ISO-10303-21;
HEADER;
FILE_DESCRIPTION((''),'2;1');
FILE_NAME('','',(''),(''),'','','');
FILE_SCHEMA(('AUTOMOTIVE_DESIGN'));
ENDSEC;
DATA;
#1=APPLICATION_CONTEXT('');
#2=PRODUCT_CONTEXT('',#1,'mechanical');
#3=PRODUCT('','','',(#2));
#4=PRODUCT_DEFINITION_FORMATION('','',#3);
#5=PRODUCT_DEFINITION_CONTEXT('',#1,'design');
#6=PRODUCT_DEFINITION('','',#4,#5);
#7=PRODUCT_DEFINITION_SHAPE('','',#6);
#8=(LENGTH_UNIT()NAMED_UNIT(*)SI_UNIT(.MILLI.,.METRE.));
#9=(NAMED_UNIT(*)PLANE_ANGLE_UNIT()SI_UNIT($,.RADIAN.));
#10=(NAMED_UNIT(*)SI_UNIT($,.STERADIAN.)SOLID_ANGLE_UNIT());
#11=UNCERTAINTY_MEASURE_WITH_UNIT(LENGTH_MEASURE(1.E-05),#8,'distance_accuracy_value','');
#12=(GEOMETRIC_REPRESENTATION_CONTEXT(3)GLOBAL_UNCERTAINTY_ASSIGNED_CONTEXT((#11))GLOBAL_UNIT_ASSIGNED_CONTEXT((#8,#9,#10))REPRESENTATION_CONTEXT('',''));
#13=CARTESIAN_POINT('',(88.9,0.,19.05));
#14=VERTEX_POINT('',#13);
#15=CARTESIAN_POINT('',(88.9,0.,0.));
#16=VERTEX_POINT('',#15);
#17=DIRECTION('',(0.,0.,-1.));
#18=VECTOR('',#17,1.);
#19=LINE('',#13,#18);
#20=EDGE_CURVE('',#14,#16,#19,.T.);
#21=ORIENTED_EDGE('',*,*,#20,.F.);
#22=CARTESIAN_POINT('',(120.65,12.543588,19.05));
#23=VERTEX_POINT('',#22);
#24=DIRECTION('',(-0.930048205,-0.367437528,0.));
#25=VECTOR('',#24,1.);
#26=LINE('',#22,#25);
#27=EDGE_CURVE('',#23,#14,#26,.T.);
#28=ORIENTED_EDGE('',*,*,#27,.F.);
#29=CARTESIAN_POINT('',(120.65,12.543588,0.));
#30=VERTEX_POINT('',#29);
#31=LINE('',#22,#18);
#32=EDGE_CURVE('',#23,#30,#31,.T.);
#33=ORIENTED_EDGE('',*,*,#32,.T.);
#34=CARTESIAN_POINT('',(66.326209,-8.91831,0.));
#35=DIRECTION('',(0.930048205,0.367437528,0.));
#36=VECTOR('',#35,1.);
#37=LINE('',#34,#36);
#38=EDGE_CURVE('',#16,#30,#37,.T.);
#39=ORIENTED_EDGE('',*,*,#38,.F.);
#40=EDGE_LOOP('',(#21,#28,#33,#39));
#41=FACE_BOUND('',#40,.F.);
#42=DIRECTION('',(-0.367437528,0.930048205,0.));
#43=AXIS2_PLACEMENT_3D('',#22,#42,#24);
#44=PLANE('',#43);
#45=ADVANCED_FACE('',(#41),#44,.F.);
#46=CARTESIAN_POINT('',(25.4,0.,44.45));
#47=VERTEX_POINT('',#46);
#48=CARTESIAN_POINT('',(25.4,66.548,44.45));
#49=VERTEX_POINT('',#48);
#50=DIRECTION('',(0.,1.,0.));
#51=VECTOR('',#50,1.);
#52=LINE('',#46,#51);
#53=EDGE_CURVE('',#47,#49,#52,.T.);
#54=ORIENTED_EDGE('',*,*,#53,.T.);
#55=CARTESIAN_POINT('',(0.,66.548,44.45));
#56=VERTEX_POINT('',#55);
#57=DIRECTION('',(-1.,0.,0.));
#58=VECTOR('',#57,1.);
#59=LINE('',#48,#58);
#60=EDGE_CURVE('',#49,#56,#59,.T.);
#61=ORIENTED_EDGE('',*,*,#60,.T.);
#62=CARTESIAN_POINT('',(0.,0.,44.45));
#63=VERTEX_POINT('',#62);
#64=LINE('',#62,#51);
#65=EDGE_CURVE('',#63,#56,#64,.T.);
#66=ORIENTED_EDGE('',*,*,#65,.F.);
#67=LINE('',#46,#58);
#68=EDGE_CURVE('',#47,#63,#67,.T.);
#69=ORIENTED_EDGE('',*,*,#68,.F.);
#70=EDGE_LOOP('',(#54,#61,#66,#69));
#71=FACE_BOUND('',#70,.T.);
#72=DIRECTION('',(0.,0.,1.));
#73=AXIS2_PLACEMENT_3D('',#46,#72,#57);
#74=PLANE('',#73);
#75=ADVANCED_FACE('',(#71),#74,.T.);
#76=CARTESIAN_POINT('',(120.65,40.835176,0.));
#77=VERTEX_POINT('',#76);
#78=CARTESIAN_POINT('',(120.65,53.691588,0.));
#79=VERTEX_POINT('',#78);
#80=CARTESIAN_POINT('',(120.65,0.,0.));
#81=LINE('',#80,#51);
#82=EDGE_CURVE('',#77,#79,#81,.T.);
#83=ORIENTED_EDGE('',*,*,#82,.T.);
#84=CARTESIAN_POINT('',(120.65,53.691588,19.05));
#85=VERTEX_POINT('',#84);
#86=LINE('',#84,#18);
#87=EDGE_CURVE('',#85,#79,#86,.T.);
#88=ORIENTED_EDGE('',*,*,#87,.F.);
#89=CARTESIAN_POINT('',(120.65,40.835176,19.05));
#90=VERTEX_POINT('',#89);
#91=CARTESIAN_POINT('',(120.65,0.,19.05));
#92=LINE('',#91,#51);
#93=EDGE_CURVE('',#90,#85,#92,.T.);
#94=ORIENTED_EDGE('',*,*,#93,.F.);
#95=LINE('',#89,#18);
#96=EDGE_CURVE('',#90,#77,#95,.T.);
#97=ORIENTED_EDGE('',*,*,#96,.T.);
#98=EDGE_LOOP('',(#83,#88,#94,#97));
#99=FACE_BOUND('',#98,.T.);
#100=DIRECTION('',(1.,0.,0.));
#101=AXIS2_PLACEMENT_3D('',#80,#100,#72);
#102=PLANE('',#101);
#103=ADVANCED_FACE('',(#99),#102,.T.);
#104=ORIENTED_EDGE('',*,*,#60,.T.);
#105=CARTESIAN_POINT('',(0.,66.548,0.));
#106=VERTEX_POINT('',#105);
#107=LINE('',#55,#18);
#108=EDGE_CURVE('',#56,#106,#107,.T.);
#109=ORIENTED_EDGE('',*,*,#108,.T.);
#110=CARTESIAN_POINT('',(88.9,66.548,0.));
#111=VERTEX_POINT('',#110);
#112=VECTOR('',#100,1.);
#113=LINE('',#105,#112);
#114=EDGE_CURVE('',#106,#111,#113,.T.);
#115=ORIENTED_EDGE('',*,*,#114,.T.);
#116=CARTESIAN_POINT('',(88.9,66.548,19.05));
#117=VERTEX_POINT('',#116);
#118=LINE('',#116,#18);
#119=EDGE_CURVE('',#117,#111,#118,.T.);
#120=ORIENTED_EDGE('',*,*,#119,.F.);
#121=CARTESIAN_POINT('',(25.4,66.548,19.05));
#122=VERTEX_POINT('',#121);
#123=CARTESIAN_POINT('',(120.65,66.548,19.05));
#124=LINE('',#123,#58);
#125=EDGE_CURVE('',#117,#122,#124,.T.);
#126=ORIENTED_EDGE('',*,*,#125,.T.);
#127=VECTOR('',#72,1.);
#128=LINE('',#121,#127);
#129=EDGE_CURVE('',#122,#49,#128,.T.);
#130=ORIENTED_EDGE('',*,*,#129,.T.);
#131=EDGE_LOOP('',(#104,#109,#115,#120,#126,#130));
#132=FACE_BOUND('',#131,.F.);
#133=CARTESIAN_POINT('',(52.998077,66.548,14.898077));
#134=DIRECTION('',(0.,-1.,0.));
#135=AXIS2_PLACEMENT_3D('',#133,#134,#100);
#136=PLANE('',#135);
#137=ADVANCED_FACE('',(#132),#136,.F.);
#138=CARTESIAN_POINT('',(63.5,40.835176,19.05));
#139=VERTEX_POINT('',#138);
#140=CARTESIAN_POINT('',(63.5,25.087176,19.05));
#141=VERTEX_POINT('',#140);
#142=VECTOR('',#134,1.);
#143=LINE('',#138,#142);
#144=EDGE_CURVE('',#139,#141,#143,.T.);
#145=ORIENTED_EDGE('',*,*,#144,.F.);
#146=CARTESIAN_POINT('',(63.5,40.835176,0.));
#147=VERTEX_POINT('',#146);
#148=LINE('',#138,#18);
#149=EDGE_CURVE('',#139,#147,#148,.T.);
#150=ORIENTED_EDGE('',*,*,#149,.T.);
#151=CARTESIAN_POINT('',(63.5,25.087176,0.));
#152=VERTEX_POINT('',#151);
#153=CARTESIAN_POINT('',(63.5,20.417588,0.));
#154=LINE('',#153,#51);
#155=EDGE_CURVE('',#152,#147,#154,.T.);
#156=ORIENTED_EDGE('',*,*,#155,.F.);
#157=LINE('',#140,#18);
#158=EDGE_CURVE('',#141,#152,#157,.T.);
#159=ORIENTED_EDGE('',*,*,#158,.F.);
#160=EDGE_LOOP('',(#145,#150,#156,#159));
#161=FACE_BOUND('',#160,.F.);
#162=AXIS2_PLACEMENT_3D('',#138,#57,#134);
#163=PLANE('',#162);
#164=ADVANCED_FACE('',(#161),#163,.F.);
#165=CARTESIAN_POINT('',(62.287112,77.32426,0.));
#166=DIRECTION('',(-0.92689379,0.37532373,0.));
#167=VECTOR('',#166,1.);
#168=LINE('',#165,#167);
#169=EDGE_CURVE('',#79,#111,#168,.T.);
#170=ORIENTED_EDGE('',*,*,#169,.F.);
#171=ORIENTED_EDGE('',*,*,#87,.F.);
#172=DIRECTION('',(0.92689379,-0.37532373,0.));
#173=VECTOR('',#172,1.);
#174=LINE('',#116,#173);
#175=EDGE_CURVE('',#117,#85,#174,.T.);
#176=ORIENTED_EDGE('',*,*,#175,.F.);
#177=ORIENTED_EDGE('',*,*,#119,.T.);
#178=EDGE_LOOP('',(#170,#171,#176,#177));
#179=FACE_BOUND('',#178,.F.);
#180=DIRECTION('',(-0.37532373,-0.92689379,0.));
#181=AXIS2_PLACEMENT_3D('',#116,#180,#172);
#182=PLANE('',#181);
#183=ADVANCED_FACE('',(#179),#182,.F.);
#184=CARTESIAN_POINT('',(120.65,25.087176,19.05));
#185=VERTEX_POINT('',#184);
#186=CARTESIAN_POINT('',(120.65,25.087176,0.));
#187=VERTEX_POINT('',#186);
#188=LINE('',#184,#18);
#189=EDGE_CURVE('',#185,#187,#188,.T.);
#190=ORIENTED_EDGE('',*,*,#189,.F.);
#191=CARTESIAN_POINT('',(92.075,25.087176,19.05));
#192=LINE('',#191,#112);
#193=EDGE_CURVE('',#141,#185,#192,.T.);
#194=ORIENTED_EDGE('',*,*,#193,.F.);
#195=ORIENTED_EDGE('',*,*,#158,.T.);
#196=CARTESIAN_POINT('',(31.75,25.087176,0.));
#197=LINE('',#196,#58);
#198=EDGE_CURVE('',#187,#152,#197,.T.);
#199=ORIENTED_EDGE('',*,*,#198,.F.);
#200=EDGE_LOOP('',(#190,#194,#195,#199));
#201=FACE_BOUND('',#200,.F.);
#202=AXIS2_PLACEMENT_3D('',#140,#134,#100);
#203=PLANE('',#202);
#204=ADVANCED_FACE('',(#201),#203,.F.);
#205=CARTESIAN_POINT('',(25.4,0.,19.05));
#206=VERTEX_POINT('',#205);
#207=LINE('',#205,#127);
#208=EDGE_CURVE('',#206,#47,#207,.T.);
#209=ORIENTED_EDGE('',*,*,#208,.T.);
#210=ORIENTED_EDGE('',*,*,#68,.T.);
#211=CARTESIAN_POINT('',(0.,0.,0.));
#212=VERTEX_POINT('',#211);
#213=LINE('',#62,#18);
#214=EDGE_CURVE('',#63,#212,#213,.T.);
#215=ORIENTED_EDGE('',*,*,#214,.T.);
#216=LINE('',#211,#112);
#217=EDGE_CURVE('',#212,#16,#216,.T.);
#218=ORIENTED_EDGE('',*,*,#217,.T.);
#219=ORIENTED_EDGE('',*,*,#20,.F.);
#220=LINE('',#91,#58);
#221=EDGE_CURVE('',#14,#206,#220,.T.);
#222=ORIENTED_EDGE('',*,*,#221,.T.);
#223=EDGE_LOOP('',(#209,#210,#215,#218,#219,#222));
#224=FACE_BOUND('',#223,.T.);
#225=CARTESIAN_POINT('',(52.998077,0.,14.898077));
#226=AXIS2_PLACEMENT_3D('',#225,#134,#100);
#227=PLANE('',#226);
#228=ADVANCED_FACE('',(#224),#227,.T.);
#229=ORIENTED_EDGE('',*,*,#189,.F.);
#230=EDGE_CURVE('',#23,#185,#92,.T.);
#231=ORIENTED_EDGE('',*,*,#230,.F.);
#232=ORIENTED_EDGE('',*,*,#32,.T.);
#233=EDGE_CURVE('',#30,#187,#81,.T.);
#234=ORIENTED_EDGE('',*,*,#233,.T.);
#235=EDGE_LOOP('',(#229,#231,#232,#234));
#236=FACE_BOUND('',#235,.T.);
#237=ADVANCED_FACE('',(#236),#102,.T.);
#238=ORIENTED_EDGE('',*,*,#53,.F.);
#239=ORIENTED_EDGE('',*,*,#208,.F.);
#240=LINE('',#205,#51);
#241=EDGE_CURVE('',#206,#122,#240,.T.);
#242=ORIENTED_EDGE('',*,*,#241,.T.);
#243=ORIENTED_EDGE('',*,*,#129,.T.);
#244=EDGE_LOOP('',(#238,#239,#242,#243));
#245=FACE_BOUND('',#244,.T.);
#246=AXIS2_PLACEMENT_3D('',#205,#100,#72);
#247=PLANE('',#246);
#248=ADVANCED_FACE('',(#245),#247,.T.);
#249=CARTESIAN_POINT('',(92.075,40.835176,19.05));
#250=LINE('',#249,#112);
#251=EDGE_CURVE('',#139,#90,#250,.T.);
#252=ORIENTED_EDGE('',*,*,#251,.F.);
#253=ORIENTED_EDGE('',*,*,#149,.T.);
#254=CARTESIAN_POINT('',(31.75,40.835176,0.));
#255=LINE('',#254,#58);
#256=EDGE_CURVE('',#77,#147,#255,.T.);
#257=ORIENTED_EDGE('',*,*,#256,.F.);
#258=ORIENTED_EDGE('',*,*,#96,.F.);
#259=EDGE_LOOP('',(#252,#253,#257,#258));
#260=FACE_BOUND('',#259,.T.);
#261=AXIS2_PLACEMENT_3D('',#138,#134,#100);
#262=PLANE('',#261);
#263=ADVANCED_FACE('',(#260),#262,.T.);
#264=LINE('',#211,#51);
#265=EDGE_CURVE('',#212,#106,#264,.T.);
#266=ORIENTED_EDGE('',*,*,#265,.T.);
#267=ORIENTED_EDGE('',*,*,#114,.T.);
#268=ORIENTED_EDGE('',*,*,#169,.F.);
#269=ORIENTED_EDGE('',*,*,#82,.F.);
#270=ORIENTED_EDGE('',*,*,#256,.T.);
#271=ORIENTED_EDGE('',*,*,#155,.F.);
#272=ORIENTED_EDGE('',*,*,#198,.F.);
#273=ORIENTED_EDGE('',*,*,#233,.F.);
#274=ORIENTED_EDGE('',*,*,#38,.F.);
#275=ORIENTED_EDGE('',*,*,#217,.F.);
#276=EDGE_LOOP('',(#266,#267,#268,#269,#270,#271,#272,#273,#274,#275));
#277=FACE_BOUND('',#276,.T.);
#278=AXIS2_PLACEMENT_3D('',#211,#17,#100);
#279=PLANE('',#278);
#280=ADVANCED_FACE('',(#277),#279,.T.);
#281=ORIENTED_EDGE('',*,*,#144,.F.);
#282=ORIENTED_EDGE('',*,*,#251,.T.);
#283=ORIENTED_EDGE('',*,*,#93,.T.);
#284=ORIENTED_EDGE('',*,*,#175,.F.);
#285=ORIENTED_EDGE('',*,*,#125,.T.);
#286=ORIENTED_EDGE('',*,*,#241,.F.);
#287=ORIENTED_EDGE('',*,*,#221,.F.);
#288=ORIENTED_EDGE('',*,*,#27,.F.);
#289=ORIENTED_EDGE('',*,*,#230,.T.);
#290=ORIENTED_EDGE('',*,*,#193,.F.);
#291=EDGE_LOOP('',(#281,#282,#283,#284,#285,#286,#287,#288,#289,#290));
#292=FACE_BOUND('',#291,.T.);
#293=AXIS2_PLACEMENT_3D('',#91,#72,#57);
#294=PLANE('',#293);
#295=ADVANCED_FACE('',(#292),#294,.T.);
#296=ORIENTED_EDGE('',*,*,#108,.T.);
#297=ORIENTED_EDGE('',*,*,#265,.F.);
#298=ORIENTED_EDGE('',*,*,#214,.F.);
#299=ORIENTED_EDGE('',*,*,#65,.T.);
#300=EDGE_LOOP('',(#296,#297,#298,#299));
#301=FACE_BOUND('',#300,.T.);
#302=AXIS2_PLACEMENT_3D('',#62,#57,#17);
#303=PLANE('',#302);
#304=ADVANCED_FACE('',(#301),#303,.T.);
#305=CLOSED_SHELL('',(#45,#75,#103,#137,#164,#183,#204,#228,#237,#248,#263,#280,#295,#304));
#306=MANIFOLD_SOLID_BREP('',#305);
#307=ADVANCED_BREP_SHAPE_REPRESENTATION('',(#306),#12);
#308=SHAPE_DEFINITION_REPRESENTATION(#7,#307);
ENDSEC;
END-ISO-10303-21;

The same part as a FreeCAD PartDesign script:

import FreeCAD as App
import Part
import Sketcher
Q = App.Units.Quantity

doc = App.newDocument("Part")
body = doc.addObject("PartDesign::Body", "Body")

# Sketch on XZ plane
sketch1 = doc.addObject("Sketcher::SketchObject", "Sketch")
body.addObject(sketch1)
sketch1.AttachmentSupport = (doc.XZ_Plane, [""])
sketch1.MapMode = "FlatFace"
sketch1.addGeometry(Part.LineSegment(App.Vector(0, 44, 0), App.Vector(0, 0, 0)), False)
sketch1.addGeometry(Part.LineSegment(App.Vector(0, 0, 0), App.Vector(121, 0, 0)), False)
sketch1.addGeometry(Part.LineSegment(App.Vector(121, 0, 0), App.Vector(121, 19, 0)), False)
sketch1.addGeometry(Part.LineSegment(App.Vector(121, 19, 0), App.Vector(25, 19, 0)), False)
sketch1.addGeometry(Part.LineSegment(App.Vector(25, 19, 0), App.Vector(25, 44, 0)), False)
sketch1.addGeometry(Part.LineSegment(App.Vector(25, 44, 0), App.Vector(0, 44, 0)), False)
sketch1.addConstraint(Sketcher.Constraint("Coincident", 0, 2, 1, 1))
sketch1.addConstraint(Sketcher.Constraint("Coincident", 1, 2, 2, 1))
sketch1.addConstraint(Sketcher.Constraint("Coincident", 2, 2, 3, 1))
sketch1.addConstraint(Sketcher.Constraint("Coincident", 3, 2, 4, 1))
sketch1.addConstraint(Sketcher.Constraint("Coincident", 4, 2, 5, 1))
sketch1.addConstraint(Sketcher.Constraint("Coincident", 5, 2, 0, 1))
sketch1.addConstraint(Sketcher.Constraint("Vertical", 0))
sketch1.addConstraint(Sketcher.Constraint("Horizontal", 1))
sketch1.addConstraint(Sketcher.Constraint("Vertical", 2))
sketch1.addConstraint(Sketcher.Constraint("Horizontal", 3))
sketch1.addConstraint(Sketcher.Constraint("Vertical", 4))
sketch1.addConstraint(Sketcher.Constraint("Horizontal", 5))
sketch1.addConstraint(Sketcher.Constraint("Coincident", 0, 2, -1, 1))
sketch1.addConstraint(Sketcher.Constraint("Equal", 5, 4))
sketch1.addConstraint(Sketcher.Constraint("DistanceX", 5, 2, 5, 1, Q("1 in")))
sketch1.addConstraint(Sketcher.Constraint("DistanceX", 1, 1, 1, 2, Q("4.75 in")))
sketch1.addConstraint(Sketcher.Constraint("DistanceY", 0, 2, 0, 1, Q("1.75 in")))
pad1 = doc.addObject("PartDesign::Pad", "Pad")
body.addObject(pad1)
pad1.Profile = sketch1
pad1.Length = Q("2.62 in")
pad1.Reversed = True

# Sketch on XY plane
sketch2 = doc.addObject("Sketcher::SketchObject", "Sketch001")
body.addObject(sketch2)
sketch2.AttachmentSupport = (doc.XY_Plane, [""])
sketch2.MapMode = "FlatFace"
sketch2.AttachmentOffset = App.Placement(App.Vector(0, 0, 0.75 * 25.4), App.Rotation())
sketch2.addGeometry(Part.LineSegment(App.Vector(64, 25, 0), App.Vector(121, 25, 0)), False)
sketch2.addGeometry(Part.LineSegment(App.Vector(121, 25, 0), App.Vector(121, 41, 0)), False)
sketch2.addGeometry(Part.LineSegment(App.Vector(121, 41, 0), App.Vector(64, 41, 0)), False)
sketch2.addGeometry(Part.LineSegment(App.Vector(64, 41, 0), App.Vector(64, 25, 0)), False)
sketch2.addConstraint(Sketcher.Constraint("Coincident", 0, 2, 1, 1))
sketch2.addConstraint(Sketcher.Constraint("Coincident", 1, 2, 2, 1))
sketch2.addConstraint(Sketcher.Constraint("Coincident", 2, 2, 3, 1))
sketch2.addConstraint(Sketcher.Constraint("Coincident", 3, 2, 0, 1))
sketch2.addConstraint(Sketcher.Constraint("Horizontal", 0))
sketch2.addConstraint(Sketcher.Constraint("Vertical", 1))
sketch2.addConstraint(Sketcher.Constraint("Horizontal", 2))
sketch2.addConstraint(Sketcher.Constraint("Vertical", 3))
sketch2.addConstraint(Sketcher.Constraint("DistanceX", 0, 1, 0, 2, Q("2.25 in")))
sketch2.addConstraint(Sketcher.Constraint("DistanceY", 1, 1, 1, 2, Q("0.62 in")))
sketch2.addConstraint(Sketcher.Constraint("DistanceX", -1, 1, 2, 2, Q("2.5 in")))
sketch2.addConstraint(Sketcher.Constraint("DistanceY", -1, 1, 0, 2, Q("25.087176 mm")))
pocket1 = doc.addObject("PartDesign::Pocket", "Pocket")
body.addObject(pocket1)
pocket1.Profile = sketch2
pocket1.Type = "ThroughAll"

# Sketch on XY plane
sketch3 = doc.addObject("Sketcher::SketchObject", "Sketch002")
body.addObject(sketch3)
sketch3.AttachmentSupport = (doc.XY_Plane, [""])
sketch3.MapMode = "FlatFace"
sketch3.AttachmentOffset = App.Placement(App.Vector(0, 0, 0.75 * 25.4), App.Rotation())
sketch3.addGeometry(Part.LineSegment(App.Vector(89, 0, 0), App.Vector(121, 0, 0)), False)
sketch3.addGeometry(Part.LineSegment(App.Vector(121, 0, 0), App.Vector(121, 13, 0)), False)
sketch3.addGeometry(Part.LineSegment(App.Vector(121, 13, 0), App.Vector(89, 0, 0)), False)
sketch3.addGeometry(Part.LineSegment(App.Vector(121, 54, 0), App.Vector(121, 67, 0)), False)
sketch3.addGeometry(Part.LineSegment(App.Vector(121, 67, 0), App.Vector(89, 67, 0)), False)
sketch3.addGeometry(Part.LineSegment(App.Vector(89, 67, 0), App.Vector(121, 54, 0)), False)
sketch3.addConstraint(Sketcher.Constraint("Coincident", 0, 2, 1, 1))
sketch3.addConstraint(Sketcher.Constraint("Coincident", 1, 2, 2, 1))
sketch3.addConstraint(Sketcher.Constraint("Coincident", 2, 2, 0, 1))
sketch3.addConstraint(Sketcher.Constraint("Coincident", 3, 2, 4, 1))
sketch3.addConstraint(Sketcher.Constraint("Coincident", 4, 2, 5, 1))
sketch3.addConstraint(Sketcher.Constraint("Coincident", 5, 2, 3, 1))
sketch3.addConstraint(Sketcher.Constraint("Horizontal", 0))
sketch3.addConstraint(Sketcher.Constraint("Vertical", 1))
sketch3.addConstraint(Sketcher.Constraint("Vertical", 3))
sketch3.addConstraint(Sketcher.Constraint("Horizontal", 4))
sketch3.addConstraint(Sketcher.Constraint("PointOnObject", 0, 2, -1))
sketch3.addConstraint(Sketcher.Constraint("Vertical", 1, 2, 3, 2))
sketch3.addConstraint(Sketcher.Constraint("Vertical", 2, 2, 4, 2))
sketch3.addConstraint(Sketcher.Constraint("DistanceX", 0, 1, 0, 2, Q("1.25 in")))
sketch3.addConstraint(Sketcher.Constraint("DistanceX", -1, 1, 2, 2, Q("3.5 in")))
sketch3.addConstraint(Sketcher.Constraint("DistanceY", -1, 1, 3, 2, Q("2.62 in")))
sketch3.addConstraint(Sketcher.Constraint("DistanceY", 1, 2, 5, 2, Q("1.62 in")))
sketch3.addConstraint(Sketcher.Constraint("DistanceY", 3, 1, 3, 2, Q("12.856412 mm")))
pocket2 = doc.addObject("PartDesign::Pocket", "Pocket001")
body.addObject(pocket2)
pocket2.Profile = sketch3
pocket2.Type = "ThroughAll"

doc.recompute()
